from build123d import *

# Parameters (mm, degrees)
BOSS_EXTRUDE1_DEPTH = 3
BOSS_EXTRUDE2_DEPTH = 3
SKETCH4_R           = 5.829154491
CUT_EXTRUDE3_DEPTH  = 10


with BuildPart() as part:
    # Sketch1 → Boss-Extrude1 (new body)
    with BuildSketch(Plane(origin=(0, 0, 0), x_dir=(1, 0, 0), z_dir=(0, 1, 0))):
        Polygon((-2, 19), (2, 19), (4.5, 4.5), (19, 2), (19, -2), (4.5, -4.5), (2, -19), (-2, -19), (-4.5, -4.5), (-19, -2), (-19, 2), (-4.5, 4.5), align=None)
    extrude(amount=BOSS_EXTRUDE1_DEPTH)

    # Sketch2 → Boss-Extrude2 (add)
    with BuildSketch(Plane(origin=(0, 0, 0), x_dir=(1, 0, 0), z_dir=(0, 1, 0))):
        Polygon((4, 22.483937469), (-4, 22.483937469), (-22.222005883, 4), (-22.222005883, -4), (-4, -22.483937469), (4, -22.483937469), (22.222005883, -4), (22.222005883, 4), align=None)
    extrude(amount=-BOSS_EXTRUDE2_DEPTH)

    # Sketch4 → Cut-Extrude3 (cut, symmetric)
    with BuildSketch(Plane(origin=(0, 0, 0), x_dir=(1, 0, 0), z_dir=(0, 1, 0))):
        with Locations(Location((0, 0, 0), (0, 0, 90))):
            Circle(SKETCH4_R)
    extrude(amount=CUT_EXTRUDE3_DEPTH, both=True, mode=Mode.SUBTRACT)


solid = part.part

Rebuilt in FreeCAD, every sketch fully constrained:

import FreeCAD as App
import Part
import Sketcher
Q = App.Units.Quantity

doc = App.newDocument("Part")
body = doc.addObject("PartDesign::Body", "Body")

sketch1 = doc.addObject("Sketcher::SketchObject", "Sketch")
body.addObject(sketch1)
sketch1.AttachmentSupport = (doc.XZ_Plane, [""])
sketch1.MapMode = "FlatFace"
sketch1.addGeometry([
    Part.LineSegment(App.Vector(2, -19, 0), App.Vector(-2, -19, 0)),
    Part.LineSegment(App.Vector(-2, -19, 0), App.Vector(-4.5, -4.5, 0)),
    Part.LineSegment(App.Vector(-4.5, -4.5, 0), App.Vector(-19, -2, 0)),
    Part.LineSegment(App.Vector(-19, -2, 0), App.Vector(-19, 2, 0)),
    Part.LineSegment(App.Vector(-19, 2, 0), App.Vector(-4.5, 4.5, 0)),
    Part.LineSegment(App.Vector(-4.5, 4.5, 0), App.Vector(-2, 19, 0)),
    Part.LineSegment(App.Vector(-2, 19, 0), App.Vector(2, 19, 0)),
    Part.LineSegment(App.Vector(2, 19, 0), App.Vector(4.5, 4.5, 0)),
    Part.LineSegment(App.Vector(4.5, 4.5, 0), App.Vector(19, 2, 0)),
    Part.LineSegment(App.Vector(19, 2, 0), App.Vector(19, -2, 0)),
    Part.LineSegment(App.Vector(19, -2, 0), App.Vector(4.5, -4.5, 0)),
    Part.LineSegment(App.Vector(4.5, -4.5, 0), App.Vector(2, -19, 0)),
], False)
sketch1.addConstraint([
    Sketcher.Constraint("Coincident", 0, 2, 1, 1),
    Sketcher.Constraint("Coincident", 1, 2, 2, 1),
    Sketcher.Constraint("Coincident", 2, 2, 3, 1),
    Sketcher.Constraint("Coincident", 3, 2, 4, 1),
    Sketcher.Constraint("Coincident", 4, 2, 5, 1),
    Sketcher.Constraint("Coincident", 5, 2, 6, 1),
    Sketcher.Constraint("Coincident", 6, 2, 7, 1),
    Sketcher.Constraint("Coincident", 7, 2, 8, 1),
    Sketcher.Constraint("Coincident", 8, 2, 9, 1),
    Sketcher.Constraint("Coincident", 9, 2, 10, 1),
    Sketcher.Constraint("Coincident", 10, 2, 11, 1),
    Sketcher.Constraint("Coincident", 11, 2, 0, 1),
    Sketcher.Constraint("Horizontal", 0),
    Sketcher.Constraint("Vertical", 3),
    Sketcher.Constraint("Horizontal", 6),
    Sketcher.Constraint("Vertical", 9),
    Sketcher.Constraint("Symmetric", 0, 2, 6, 2, -1, 1),
    Sketcher.Constraint("Symmetric", 1, 2, 7, 2, -1, 1),
    Sketcher.Constraint("Symmetric", 2, 2, 8, 2, -1, 1),
    Sketcher.Constraint("Symmetric", 4, 2, 10, 2, -1, 1),
    Sketcher.Constraint("Symmetric", 4, 2, 7, 2, -2),
    Sketcher.Constraint("Perpendicular", 1, 4),
    Sketcher.Constraint("Perpendicular", 2, 5),
    Sketcher.Constraint("Perpendicular", 7, 10),
    Sketcher.Constraint("Perpendicular", 8, 11),
    Sketcher.Constraint("Horizontal", 3, 2, 8, 2),
    Sketcher.Constraint("Equal", 6, 3),
    Sketcher.Constraint("Equal", 1, 2),
    Sketcher.Constraint("DistanceX", 0, 2, 0, 1, Q("4 mm")),
    Sketcher.Constraint("DistanceY", 0, 2, -1, 1, Q("19 mm")),
    Sketcher.Constraint("DistanceY", 1, 2, 4, 2, Q("9 mm")),
])
pad1 = doc.addObject("PartDesign::Pad", "Pad")
body.addObject(pad1)
pad1.Profile = sketch1
pad1.Length = 3
pad1.Reversed = True

sketch2 = doc.addObject("Sketcher::SketchObject", "Sketch001")
body.addObject(sketch2)
sketch2.AttachmentSupport = (doc.XZ_Plane, [""])
sketch2.MapMode = "FlatFace"
sketch2.addGeometry([
    Part.LineSegment(App.Vector(4, -22, 0), App.Vector(-4, -22, 0)),
    Part.LineSegment(App.Vector(-4, -22, 0), App.Vector(-22, -4, 0)),
    Part.LineSegment(App.Vector(-22, -4, 0), App.Vector(-22, 4, 0)),
    Part.LineSegment(App.Vector(-22, 4, 0), App.Vector(-4, 22, 0)),
    Part.LineSegment(App.Vector(-4, 22, 0), App.Vector(4, 22, 0)),
    Part.LineSegment(App.Vector(4, 22, 0), App.Vector(22, 4, 0)),
    Part.LineSegment(App.Vector(22, 4, 0), App.Vector(22, -4, 0)),
    Part.LineSegment(App.Vector(22, -4, 0), App.Vector(4, -22, 0)),
], False)
sketch2.addConstraint([
    Sketcher.Constraint("Coincident", 0, 2, 1, 1),
    Sketcher.Constraint("Coincident", 1, 2, 2, 1),
    Sketcher.Constraint("Coincident", 2, 2, 3, 1),
    Sketcher.Constraint("Coincident", 3, 2, 4, 1),
    Sketcher.Constraint("Coincident", 4, 2, 5, 1),
    Sketcher.Constraint("Coincident", 5, 2, 6, 1),
    Sketcher.Constraint("Coincident", 6, 2, 7, 1),
    Sketcher.Constraint("Coincident", 7, 2, 0, 1),
    Sketcher.Constraint("Horizontal", 0),
    Sketcher.Constraint("Vertical", 2),
    Sketcher.Constraint("Horizontal", 4),
    Sketcher.Constraint("Vertical", 6),
    Sketcher.Constraint("Symmetric", 0, 2, 4, 2, -1, 1),
    Sketcher.Constraint("Symmetric", 1, 2, 5, 2, -1, 1),
    Sketcher.Constraint("Parallel", 3, 7),
    Sketcher.Constraint("Horizontal", 2, 2, 5, 2),
    Sketcher.Constraint("Horizontal", 1, 2, 6, 2),
    Sketcher.Constraint("Vertical", 0, 2, 3, 2),
    Sketcher.Constraint("Equal", 4, 2),
    Sketcher.Constraint("DistanceX", 0, 2, 0, 1, Q("8 mm")),
    Sketcher.Constraint("DistanceX", 2, 2, 5, 2, Q("44.444012 mm")),
    Sketcher.Constraint("Distance", 1, Q("25.955682 mm")),
])
pad2 = doc.addObject("PartDesign::Pad", "Pad001")
body.addObject(pad2)
pad2.Profile = sketch2
pad2.Length = 3

sketch3 = doc.addObject("Sketcher::SketchObject", "Sketch002")
body.addObject(sketch3)
sketch3.AttachmentSupport = (doc.XZ_Plane, [""])
sketch3.MapMode = "FlatFace"
sketch3.addGeometry(Part.Circle(App.Vector(0, 0, 0), App.Vector(0, 0, 1), 6), False)
sketch3.addConstraint([
    Sketcher.Constraint("Coincident", 0, 3, -1, 1),
    Sketcher.Constraint("Diameter", 0, Q("11.658309 mm")),
])
pocket1 = doc.addObject("PartDesign::Pocket", "Pocket")
body.addObject(pocket1)
pocket1.Profile = sketch3
pocket1.Length = 20
pocket1.Midplane = True

doc.recompute()
